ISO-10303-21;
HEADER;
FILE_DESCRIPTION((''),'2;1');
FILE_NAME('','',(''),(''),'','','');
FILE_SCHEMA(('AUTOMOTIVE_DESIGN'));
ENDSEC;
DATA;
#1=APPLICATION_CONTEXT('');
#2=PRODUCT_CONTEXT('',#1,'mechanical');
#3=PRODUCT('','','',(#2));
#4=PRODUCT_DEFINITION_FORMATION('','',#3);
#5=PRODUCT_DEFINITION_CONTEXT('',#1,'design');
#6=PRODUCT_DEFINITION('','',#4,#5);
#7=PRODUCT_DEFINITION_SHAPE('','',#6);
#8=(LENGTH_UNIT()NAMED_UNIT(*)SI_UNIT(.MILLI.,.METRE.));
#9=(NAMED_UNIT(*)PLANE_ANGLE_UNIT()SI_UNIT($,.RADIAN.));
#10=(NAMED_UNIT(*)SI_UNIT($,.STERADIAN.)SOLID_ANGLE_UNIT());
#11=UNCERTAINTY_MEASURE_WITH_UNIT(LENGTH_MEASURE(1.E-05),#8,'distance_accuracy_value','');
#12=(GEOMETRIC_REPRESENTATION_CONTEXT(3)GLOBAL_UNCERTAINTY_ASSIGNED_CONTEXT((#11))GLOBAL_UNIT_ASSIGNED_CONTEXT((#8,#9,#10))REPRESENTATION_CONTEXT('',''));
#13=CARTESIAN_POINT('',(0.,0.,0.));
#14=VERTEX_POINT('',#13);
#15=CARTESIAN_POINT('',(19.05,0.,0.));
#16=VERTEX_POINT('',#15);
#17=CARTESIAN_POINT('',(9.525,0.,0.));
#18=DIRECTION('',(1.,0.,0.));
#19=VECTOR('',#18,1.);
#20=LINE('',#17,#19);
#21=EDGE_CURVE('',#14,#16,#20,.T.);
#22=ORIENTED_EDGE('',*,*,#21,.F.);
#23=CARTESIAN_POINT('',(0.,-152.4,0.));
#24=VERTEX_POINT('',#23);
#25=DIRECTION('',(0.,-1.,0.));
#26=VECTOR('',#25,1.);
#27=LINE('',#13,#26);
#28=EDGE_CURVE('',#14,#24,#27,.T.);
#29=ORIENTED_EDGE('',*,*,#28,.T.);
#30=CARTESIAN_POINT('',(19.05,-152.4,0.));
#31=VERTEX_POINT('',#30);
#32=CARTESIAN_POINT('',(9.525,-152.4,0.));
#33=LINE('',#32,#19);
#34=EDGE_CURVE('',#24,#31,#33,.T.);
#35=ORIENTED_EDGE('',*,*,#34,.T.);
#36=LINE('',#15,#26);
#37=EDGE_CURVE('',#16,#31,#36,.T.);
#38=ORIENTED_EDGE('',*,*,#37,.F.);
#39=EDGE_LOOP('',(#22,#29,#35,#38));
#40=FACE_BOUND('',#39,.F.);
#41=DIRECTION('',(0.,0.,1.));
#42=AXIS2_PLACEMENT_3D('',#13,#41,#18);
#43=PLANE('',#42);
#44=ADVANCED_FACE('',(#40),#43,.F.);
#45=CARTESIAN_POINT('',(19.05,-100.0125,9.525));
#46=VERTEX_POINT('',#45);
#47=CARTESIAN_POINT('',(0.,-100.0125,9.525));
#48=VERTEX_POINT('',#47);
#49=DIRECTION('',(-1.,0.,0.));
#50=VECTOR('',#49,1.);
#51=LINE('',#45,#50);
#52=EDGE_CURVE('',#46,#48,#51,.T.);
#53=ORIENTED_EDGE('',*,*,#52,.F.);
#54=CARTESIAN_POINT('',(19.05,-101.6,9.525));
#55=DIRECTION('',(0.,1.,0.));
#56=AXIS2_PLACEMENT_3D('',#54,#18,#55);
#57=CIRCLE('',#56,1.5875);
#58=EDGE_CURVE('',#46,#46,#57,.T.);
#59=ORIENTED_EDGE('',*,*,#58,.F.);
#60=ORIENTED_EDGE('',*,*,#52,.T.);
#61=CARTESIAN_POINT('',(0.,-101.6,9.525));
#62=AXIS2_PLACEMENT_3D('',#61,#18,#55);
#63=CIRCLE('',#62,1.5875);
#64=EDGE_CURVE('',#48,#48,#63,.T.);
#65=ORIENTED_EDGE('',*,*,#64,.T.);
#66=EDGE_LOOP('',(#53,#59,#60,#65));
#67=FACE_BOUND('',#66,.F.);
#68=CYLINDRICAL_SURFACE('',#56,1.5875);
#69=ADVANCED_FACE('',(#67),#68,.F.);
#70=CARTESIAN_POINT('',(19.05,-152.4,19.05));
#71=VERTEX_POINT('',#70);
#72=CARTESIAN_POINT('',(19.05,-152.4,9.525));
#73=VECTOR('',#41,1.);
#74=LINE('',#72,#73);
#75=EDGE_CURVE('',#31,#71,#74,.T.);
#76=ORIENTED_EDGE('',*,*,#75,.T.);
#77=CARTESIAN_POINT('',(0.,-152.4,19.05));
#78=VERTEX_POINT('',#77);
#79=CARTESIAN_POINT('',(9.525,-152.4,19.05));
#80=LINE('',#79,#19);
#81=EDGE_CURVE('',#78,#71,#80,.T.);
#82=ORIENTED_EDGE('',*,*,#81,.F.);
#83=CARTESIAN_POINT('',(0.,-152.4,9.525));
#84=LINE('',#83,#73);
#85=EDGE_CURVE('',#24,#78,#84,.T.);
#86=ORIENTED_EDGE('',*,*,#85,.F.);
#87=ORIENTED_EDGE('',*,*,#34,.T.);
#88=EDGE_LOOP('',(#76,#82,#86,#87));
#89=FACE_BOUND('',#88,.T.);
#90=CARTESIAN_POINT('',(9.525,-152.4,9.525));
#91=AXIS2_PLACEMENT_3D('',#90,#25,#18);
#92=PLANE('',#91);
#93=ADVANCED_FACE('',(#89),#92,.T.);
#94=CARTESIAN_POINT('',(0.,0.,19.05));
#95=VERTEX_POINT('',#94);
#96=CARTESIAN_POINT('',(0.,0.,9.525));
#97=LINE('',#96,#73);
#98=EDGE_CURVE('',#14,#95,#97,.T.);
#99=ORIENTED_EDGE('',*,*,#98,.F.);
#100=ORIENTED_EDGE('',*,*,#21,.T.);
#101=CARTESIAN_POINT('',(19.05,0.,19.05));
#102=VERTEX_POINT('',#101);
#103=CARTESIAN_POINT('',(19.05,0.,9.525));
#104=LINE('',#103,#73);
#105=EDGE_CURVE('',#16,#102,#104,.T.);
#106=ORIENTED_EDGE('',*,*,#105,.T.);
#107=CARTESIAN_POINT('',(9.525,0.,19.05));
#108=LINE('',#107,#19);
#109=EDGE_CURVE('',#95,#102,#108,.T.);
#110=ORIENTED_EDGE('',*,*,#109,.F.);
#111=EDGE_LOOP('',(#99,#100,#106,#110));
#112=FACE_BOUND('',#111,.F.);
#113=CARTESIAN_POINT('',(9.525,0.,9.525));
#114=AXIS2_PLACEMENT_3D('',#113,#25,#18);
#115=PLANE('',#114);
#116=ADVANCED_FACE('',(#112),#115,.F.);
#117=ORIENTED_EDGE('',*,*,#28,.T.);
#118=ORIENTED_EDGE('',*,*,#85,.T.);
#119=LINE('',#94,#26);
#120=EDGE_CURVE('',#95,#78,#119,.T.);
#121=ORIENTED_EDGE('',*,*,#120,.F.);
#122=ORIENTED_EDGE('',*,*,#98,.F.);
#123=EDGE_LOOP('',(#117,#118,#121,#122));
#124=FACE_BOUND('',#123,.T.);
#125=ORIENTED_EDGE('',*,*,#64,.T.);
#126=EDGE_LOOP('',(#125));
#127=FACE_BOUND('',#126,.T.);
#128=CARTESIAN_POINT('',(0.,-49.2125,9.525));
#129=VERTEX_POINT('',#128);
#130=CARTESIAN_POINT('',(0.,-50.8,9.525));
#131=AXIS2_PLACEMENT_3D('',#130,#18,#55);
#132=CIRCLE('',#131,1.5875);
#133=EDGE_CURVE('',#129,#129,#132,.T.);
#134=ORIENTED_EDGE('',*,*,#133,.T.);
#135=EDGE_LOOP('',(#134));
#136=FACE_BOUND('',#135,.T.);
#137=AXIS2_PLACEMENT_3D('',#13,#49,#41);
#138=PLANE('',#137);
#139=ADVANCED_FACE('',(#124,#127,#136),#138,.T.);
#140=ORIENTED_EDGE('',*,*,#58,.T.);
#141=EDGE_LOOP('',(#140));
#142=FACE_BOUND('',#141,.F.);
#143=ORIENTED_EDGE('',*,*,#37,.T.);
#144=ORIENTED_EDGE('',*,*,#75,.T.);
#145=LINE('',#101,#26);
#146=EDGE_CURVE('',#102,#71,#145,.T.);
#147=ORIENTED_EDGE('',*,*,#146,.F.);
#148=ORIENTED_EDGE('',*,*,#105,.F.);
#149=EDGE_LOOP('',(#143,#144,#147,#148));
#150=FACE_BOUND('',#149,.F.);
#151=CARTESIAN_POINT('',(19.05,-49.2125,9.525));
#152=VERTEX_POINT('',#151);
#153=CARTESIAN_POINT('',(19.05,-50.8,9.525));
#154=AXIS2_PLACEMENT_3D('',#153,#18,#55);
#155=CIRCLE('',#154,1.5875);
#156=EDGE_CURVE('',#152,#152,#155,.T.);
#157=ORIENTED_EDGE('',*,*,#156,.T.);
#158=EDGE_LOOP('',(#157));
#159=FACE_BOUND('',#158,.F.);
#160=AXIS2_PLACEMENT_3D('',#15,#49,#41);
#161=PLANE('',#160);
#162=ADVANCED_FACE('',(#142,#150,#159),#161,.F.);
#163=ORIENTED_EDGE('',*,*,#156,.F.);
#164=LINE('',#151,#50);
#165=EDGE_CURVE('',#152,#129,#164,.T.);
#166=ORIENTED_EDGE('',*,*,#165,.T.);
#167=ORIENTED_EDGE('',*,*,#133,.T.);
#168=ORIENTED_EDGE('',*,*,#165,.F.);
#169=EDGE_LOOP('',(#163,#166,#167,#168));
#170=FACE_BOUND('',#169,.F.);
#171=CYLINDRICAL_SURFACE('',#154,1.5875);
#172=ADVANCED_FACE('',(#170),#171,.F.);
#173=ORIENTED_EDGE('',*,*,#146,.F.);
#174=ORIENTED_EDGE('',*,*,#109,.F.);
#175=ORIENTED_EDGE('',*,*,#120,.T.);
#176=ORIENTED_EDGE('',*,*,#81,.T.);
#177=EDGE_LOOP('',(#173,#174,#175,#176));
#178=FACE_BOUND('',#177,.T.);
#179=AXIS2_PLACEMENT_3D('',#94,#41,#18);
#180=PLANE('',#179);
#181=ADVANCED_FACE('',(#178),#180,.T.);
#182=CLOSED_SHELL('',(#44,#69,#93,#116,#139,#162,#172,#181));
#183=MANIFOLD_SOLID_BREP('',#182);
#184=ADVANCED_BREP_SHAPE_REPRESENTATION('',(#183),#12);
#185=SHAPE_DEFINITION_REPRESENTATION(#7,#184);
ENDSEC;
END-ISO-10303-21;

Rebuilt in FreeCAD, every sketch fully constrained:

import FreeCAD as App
import Part
import Sketcher
from FreeCAD import Vector
Q = App.Units.Quantity


def add_polygon(sketch, points):
    """Adds a closed chain of lines whose ends are joined by coincident constraints."""
    first, n = sketch.GeometryCount, len(points)
    for a, b in zip(points, points[1:] + points[:1]):
        sketch.addGeometry(Part.LineSegment(App.Vector(*a, 0), App.Vector(*b, 0)), False)
    for i in range(n):
        sketch.addConstraint(Sketcher.Constraint("Coincident", first + i, 2, first + (i + 1) % n, 1))

doc = App.newDocument("Part")
params = doc.addObject("Spreadsheet::Sheet", "Params")
for row, (alias, value) in enumerate([
    ("sketch1_width", "0.75 in"),
    ("pad1_length", "6 in"),
    ("sketch2_diameter", "0.125 in"),
    ("pocket1_length", "1 in"),
], start=1):
    params.set(f"A{row}", alias)
    params.set(f"B{row}", "=" + value)
    params.setAlias(f"B{row}", alias)

body = doc.addObject("PartDesign::Body", "Body")

sketch1 = doc.addObject("Sketcher::SketchObject", "Sketch")
body.addObject(sketch1)
sketch1.AttachmentSupport = (doc.XZ_Plane, [""])
sketch1.MapMode = "FlatFace"
add_polygon(sketch1, [(0, 19), (0, 0), (19, 0), (19, 19)])
sketch1.addConstraint([
    Sketcher.Constraint("Vertical", 0),
    Sketcher.Constraint("Horizontal", 1),
    Sketcher.Constraint("Vertical", 2),
    Sketcher.Constraint("Horizontal", 3),
    Sketcher.Constraint("Coincident", 0, 2, -1, 1),
    Sketcher.Constraint("Equal", 3, 0),
    Sketcher.Constraint("DistanceX", 1, 1, 1, 2, Q("0.75 in")),
])
sketch1.setExpression("Constraints[10]", "Params.sketch1_width")
pad1 = doc.addObject("PartDesign::Pad", "Pad")
body.addObject(pad1)
pad1.Profile = sketch1
pad1.setExpression("Length", "Params.pad1_length")

sketch2 = doc.addObject("Sketcher::SketchObject", "Sketch001")
body.addObject(sketch2)
sketch2.AttachmentSupport = (doc.YZ_Plane, [""])
sketch2.MapMode = "FlatFace"
sketch2.AttachmentOffset = App.Placement(Vector(0, 0, 0.75 * 25.4), App.Rotation())
sketch2.addGeometry([
    Part.Circle(Vector(-101.6, 9.5, 0), Vector(0, 0, 1), 1.6),
    Part.Circle(Vector(-50.8, 9.5, 0), Vector(0, 0, 1), 1.6),
], False)
sketch2.addConstraint([
    Sketcher.Constraint("Equal", 0, 1),
    Sketcher.Constraint("Horizontal", 0, 3, 1, 3),
    Sketcher.Constraint("Diameter", 0, Q("0.125 in")),
    Sketcher.Constraint("DistanceX", 0, 3, -1, 1, Q("4 in")),
    Sketcher.Constraint("DistanceX", 1, 3, -1, 1, Q("2 in")),
    Sketcher.Constraint("DistanceY", -1, 1, 0, 3, Q("0.375 in")),
])
sketch2.setExpression("Constraints[2]", "Params.sketch2_diameter")
pocket1 = doc.addObject("PartDesign::Pocket", "Pocket")
body.addObject(pocket1)
pocket1.Profile = sketch2
pocket1.setExpression("Length", "Params.pocket1_length")

doc.recompute()
